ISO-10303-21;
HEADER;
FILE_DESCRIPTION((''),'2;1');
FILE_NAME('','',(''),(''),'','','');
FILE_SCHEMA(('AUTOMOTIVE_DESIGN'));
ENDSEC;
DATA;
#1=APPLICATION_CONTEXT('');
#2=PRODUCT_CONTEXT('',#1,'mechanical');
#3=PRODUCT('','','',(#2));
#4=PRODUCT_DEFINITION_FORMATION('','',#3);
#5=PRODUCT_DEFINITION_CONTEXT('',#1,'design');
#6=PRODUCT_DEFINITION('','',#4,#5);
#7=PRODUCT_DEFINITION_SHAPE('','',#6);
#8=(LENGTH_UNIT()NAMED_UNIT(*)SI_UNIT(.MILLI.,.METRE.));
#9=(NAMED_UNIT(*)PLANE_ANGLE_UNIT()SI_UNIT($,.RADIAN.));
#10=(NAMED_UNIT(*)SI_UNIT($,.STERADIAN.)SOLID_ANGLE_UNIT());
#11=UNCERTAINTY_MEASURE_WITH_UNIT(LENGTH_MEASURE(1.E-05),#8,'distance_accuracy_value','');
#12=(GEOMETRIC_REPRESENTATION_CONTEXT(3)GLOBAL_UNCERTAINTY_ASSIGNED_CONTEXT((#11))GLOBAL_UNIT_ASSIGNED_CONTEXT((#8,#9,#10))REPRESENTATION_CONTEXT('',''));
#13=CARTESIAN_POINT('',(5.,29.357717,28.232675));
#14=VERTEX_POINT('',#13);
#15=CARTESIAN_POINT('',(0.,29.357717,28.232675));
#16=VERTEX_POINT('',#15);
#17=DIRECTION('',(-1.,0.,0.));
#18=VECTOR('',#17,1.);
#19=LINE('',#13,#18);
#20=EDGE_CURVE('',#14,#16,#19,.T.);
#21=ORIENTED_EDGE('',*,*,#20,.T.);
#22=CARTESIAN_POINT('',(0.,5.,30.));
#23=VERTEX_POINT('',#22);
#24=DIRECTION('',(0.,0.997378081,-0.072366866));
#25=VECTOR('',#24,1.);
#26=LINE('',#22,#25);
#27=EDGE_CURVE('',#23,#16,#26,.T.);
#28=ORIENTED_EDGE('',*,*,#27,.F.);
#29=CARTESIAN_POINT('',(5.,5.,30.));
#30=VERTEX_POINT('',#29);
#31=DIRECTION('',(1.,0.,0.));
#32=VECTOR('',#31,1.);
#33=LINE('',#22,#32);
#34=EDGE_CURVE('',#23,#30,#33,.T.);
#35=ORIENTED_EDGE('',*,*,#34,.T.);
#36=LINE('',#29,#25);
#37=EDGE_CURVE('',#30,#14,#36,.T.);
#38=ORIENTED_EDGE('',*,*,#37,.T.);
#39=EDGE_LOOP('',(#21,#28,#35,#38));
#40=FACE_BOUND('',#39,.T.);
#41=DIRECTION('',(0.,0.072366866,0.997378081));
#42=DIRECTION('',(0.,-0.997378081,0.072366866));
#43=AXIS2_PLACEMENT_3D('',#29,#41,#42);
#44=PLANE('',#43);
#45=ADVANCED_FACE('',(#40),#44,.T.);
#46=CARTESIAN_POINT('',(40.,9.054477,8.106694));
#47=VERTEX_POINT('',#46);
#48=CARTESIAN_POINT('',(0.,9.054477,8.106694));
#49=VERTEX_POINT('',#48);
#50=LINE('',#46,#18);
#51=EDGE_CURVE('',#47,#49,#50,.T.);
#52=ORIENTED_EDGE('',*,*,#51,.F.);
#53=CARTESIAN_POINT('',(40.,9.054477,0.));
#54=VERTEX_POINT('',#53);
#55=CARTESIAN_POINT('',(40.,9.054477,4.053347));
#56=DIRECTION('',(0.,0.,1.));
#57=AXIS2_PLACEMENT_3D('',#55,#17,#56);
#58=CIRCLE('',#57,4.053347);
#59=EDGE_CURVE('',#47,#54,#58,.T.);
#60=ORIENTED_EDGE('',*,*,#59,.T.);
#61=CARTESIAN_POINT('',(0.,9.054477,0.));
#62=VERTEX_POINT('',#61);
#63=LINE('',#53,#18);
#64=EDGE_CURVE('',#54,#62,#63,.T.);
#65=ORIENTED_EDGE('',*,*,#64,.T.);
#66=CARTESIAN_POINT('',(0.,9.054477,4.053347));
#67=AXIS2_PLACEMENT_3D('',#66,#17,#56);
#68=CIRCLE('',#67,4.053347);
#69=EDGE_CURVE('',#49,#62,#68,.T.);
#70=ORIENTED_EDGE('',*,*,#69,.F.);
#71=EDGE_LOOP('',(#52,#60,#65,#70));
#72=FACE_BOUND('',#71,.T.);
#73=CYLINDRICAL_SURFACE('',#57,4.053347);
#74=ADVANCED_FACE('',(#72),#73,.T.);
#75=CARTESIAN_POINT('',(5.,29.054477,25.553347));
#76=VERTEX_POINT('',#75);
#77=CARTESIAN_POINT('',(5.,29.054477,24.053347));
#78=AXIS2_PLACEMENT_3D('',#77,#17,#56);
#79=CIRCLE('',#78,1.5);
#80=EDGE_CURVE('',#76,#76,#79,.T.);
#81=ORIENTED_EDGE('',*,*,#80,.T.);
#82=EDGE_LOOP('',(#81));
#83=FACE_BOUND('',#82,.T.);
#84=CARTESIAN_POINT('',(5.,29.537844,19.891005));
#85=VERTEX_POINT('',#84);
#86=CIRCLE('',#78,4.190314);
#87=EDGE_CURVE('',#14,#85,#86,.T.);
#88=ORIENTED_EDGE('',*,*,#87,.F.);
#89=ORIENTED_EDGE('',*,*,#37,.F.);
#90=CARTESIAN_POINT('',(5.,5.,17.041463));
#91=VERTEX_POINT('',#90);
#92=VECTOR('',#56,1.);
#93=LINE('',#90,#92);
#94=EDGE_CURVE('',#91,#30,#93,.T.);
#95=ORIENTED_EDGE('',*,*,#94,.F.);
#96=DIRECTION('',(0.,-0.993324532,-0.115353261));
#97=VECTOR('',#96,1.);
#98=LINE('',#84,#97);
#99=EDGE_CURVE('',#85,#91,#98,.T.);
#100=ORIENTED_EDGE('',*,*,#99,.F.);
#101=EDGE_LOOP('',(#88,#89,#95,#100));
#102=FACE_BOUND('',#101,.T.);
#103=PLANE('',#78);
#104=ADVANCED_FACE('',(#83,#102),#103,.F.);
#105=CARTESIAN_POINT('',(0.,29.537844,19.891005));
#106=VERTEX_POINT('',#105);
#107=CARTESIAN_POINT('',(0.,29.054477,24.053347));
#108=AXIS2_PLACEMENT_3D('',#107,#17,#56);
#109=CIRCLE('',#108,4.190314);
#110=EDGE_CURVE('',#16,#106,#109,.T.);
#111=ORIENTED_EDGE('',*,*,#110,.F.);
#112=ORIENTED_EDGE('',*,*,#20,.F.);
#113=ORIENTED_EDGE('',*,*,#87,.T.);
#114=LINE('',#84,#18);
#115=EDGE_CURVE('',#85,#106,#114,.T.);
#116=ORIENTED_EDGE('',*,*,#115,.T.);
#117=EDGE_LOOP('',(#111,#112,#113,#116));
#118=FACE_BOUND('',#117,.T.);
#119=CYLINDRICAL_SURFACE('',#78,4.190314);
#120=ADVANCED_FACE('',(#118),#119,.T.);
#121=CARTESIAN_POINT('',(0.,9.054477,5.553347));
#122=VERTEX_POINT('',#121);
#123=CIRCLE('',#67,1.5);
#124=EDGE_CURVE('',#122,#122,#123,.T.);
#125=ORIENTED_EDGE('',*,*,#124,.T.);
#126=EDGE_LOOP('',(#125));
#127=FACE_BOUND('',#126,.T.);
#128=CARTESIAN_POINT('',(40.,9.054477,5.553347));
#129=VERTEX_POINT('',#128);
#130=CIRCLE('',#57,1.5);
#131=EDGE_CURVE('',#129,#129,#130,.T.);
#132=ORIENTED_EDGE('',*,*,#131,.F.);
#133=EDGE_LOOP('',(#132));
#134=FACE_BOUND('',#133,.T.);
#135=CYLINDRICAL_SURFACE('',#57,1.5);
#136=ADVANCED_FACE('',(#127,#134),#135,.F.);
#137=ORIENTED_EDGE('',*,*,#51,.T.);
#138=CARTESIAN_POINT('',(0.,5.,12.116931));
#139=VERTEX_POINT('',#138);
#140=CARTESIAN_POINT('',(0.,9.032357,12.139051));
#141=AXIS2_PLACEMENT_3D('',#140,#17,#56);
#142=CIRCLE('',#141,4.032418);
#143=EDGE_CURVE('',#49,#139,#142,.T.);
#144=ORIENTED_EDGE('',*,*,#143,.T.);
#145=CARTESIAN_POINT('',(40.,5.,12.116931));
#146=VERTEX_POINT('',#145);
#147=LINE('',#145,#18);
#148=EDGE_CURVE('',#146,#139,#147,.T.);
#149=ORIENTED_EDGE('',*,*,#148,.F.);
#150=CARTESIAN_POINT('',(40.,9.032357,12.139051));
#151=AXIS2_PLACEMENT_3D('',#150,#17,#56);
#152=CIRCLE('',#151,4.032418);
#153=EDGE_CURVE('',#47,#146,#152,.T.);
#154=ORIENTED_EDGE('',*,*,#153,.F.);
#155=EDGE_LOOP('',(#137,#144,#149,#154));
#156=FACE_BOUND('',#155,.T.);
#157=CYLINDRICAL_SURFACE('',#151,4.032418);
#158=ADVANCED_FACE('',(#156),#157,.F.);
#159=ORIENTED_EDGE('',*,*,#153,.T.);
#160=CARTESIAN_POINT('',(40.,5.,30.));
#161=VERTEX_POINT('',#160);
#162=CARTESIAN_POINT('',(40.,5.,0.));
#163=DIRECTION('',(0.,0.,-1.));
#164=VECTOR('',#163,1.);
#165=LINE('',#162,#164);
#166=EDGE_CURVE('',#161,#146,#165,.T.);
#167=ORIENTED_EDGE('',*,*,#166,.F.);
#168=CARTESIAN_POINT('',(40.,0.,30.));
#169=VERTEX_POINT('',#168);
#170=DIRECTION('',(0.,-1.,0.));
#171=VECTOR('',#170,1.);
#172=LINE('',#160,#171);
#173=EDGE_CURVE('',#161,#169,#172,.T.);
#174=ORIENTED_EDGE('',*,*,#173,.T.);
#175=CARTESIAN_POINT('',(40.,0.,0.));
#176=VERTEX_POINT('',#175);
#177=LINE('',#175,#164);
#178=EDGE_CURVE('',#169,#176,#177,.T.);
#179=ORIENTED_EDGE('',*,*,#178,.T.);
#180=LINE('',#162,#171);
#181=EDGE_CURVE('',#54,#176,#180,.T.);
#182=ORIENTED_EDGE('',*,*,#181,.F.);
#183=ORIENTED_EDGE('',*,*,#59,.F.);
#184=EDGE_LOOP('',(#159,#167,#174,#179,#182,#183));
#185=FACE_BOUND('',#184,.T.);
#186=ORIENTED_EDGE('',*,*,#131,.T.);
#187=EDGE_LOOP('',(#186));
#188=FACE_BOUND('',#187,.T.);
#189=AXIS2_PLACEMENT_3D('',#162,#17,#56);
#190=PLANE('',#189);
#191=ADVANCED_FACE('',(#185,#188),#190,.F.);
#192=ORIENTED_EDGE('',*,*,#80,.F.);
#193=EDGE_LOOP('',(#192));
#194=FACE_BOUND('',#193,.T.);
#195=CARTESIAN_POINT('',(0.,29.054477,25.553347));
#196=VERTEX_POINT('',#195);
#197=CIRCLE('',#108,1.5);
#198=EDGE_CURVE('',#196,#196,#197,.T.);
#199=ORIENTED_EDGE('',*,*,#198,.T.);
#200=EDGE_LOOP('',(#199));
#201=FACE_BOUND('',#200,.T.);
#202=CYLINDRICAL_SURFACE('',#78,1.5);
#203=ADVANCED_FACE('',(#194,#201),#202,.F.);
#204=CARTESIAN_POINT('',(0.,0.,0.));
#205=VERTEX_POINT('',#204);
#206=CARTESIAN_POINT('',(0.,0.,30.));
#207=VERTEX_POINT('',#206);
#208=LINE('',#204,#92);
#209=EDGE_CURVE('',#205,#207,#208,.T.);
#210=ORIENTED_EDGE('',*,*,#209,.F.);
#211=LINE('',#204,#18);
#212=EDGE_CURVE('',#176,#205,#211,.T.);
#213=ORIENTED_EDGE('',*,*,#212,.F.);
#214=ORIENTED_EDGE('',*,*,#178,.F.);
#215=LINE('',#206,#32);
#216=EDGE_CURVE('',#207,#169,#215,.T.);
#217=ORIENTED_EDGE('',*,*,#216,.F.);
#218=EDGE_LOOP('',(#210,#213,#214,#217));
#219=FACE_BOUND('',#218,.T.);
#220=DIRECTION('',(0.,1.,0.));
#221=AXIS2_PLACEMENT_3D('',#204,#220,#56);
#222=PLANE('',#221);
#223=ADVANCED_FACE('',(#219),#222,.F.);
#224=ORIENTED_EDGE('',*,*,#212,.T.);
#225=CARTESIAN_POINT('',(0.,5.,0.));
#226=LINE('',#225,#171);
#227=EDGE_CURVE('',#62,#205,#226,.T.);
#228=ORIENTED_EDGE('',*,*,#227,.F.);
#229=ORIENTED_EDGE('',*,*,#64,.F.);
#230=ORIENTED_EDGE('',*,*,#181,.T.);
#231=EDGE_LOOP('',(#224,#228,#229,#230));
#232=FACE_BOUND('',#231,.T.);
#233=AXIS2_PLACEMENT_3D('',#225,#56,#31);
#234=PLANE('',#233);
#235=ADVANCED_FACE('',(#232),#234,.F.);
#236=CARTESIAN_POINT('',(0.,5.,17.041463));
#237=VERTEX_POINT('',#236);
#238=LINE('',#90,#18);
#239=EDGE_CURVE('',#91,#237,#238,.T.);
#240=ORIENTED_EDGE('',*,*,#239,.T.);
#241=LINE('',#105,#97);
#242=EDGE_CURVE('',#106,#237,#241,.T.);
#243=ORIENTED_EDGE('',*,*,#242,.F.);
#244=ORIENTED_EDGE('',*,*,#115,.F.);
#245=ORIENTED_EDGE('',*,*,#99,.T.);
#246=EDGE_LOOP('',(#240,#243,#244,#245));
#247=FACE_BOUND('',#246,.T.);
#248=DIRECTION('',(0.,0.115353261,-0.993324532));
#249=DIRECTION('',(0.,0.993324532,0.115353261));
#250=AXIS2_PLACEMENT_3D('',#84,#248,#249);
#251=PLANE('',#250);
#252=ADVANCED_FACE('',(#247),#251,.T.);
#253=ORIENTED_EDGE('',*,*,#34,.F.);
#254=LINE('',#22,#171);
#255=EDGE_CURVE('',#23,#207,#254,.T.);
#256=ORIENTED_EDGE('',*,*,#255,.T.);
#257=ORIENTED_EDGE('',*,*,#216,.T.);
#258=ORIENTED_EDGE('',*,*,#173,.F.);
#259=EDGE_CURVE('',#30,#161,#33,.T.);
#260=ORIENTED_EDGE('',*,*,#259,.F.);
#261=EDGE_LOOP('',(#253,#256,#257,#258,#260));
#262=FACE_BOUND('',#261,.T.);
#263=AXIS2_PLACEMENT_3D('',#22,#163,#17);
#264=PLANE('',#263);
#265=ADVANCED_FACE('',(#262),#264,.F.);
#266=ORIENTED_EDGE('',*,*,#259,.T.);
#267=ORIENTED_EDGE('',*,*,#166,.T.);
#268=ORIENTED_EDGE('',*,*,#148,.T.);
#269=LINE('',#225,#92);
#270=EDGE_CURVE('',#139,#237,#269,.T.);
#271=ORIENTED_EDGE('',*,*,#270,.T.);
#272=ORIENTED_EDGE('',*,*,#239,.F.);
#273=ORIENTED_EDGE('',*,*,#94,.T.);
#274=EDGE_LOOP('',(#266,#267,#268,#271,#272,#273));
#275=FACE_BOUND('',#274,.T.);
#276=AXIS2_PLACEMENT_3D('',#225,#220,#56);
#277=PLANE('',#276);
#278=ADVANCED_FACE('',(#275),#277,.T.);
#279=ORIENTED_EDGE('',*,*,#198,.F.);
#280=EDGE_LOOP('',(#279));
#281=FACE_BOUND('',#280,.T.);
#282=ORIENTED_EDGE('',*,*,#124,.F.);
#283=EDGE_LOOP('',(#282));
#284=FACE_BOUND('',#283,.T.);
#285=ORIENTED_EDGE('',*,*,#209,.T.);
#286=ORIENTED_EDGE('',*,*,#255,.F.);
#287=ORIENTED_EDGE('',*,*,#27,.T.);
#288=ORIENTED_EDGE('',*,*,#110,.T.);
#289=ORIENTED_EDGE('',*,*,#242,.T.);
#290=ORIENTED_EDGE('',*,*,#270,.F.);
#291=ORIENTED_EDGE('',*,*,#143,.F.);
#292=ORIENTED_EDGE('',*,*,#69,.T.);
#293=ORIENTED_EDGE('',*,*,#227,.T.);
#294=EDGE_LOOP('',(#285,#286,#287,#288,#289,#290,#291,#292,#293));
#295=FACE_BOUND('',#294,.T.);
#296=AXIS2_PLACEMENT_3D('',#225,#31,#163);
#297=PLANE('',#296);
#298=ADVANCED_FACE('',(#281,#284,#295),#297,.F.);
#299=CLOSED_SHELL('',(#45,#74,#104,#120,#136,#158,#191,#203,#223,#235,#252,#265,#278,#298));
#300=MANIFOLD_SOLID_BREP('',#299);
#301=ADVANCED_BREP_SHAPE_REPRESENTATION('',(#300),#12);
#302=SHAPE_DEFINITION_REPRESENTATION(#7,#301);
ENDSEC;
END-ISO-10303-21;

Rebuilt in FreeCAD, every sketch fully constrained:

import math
import FreeCAD as App
import Part
import Sketcher
from FreeCAD import Vector
Q = App.Units.Quantity


def add_polygon(sketch, points):
    """Adds a closed chain of lines whose ends are joined by coincident constraints."""
    first, n = sketch.GeometryCount, len(points)
    for a, b in zip(points, points[1:] + points[:1]):
        sketch.addGeometry(Part.LineSegment(App.Vector(*a, 0), App.Vector(*b, 0)), False)
    for i in range(n):
        sketch.addConstraint(Sketcher.Constraint("Coincident", first + i, 2, first + (i + 1) % n, 1))

doc = App.newDocument("Part")
params = doc.addObject("Spreadsheet::Sheet", "Params")
for row, (alias, value) in enumerate([
    ("sketch1_width", "40 mm"),
    ("sketch1_height", "30 mm"),
    ("pad1_length", "5 mm"),
    ("sketch2_diameter", "3 mm"),
    ("pad2_length", "40 mm"),
    ("sketch3_diameter", "3 mm"),
    ("pad3_length", "5 mm"),
], start=1):
    params.set(f"A{row}", alias)
    params.set(f"B{row}", "=" + value)
    params.setAlias(f"B{row}", alias)

body = doc.addObject("PartDesign::Body", "Body")

sketch1 = body.newObject("Sketcher::SketchObject", "Sketch")
sketch1.AttachmentSupport = (doc.getObject("XZ_Plane"), [""])
sketch1.MapMode = "FlatFace"
add_polygon(sketch1, [(0, 0), (0, 30), (40, 30), (40, 0)])
sketch1.addConstraint([
    Sketcher.Constraint("Vertical", 0),
    Sketcher.Constraint("Horizontal", 1),
    Sketcher.Constraint("Vertical", 2),
    Sketcher.Constraint("Horizontal", 3),
    Sketcher.Constraint("Coincident", 3, 2, -1, 1),
    Sketcher.Constraint("DistanceX", 1, 1, 1, 2, Q("40 mm")),
    Sketcher.Constraint("DistanceY", 0, 1, 0, 2, Q("30 mm")),
])
sketch1.setExpression("Constraints[9]", "Params.sketch1_width")
sketch1.setExpression("Constraints[10]", "Params.sketch1_height")
pad1 = body.newObject("PartDesign::Pad", "Pad")
pad1.Profile = sketch1
pad1.setExpression("Length", "Params.pad1_length")
pad1.Reversed = True

sketch2 = body.newObject("Sketcher::SketchObject", "Sketch001")
sketch2.AttachmentSupport = (doc.getObject("YZ_Plane"), [""])
sketch2.MapMode = "FlatFace"
sketch2.addGeometry([
    Part.ArcOfCircle(Part.Circle(Vector(9.054, 4.053, 0), Vector(0, 0, 1), 4.053), math.radians(-90), math.radians(90)),
    Part.LineSegment(Vector(9.054, 0, 0), Vector(5, 0, 0)),
    Part.LineSegment(Vector(5, 0, 0), Vector(5, 12.117, 0)),
    Part.ArcOfCircle(Part.Circle(Vector(9.032, 12.139, 0), Vector(0, 0, 1), 4.032), math.radians(-180), math.radians(-90)),
    Part.ArcOfCircle(Part.Circle(Vector(9.054, 4.053, 0), Vector(0, 0, 1), 4.053), math.radians(90), math.radians(90.31)),
    Part.Circle(Vector(9.054, 4.053, 0), Vector(0, 0, 1), 1.5),
], False)
sketch2.addConstraint([
    Sketcher.Constraint("Tangent", 0, 1, 1, 1),
    Sketcher.Constraint("Coincident", 1, 2, 2, 1),
    Sketcher.Constraint("Coincident", 2, 2, 3, 1),
    Sketcher.Constraint("Coincident", 3, 2, 4, 2),
    Sketcher.Constraint("Tangent", 4, 1, 0, 2),
    Sketcher.Constraint("Horizontal", 1),
    Sketcher.Constraint("Vertical", 2),
    Sketcher.Constraint("Coincident", 5, 3, 0, 3),
    Sketcher.Constraint("PointOnObject", 0, 1, -1),
    Sketcher.Constraint("Vertical", 0, 1, 4, 1),
    Sketcher.Constraint("Diameter", 5, Q("3 mm")),
    Sketcher.Constraint("DistanceX", -1, 1, 1, 2, Q("5 mm")),
    Sketcher.Constraint("Radius", 4, Q("4.053321 mm")),
    Sketcher.Constraint("Radius", 0, Q("4.053347 mm")),
    Sketcher.Constraint("Radius", 3, Q("4.032418 mm")),
    Sketcher.Constraint("DistanceY", 2, 1, 2, 2, Q("12.116931 mm")),
    Sketcher.Constraint("DistanceX", -1, 1, 3, 2, Q("9.0323 mm")),
    Sketcher.Constraint("DistanceX", 1, 2, 1, 1, Q("4.054477 mm")),
])
sketch2.setExpression("Constraints[10]", "Params.sketch2_diameter")
pad2 = body.newObject("PartDesign::Pad", "Pad001")
pad2.Profile = sketch2
pad2.setExpression("Length", "Params.pad2_length")

sketch3 = body.newObject("Sketcher::SketchObject", "Sketch002")
sketch3.AttachmentSupport = (doc.getObject("YZ_Plane"), [""])
sketch3.MapMode = "FlatFace"
sketch3.addGeometry([
    Part.LineSegment(Vector(5, 30, 0), Vector(29.4, 28.2, 0)),
    Part.ArcOfCircle(Part.Circle(Vector(29.1, 24.1, 0), Vector(0, 0, 1), 4.2), math.radians(-83), math.radians(86)),
    Part.LineSegment(Vector(29.5, 19.9, 0), Vector(5, 17, 0)),
    Part.LineSegment(Vector(5, 17, 0), Vector(5, 30, 0)),
    Part.Circle(Vector(29.1, 24.1, 0), Vector(0, 0, 1), 1.5),
], False)
sketch3.addConstraint([
    Sketcher.Constraint("Tangent", 0, 2, 1, 2),
    Sketcher.Constraint("Tangent", 1, 1, 2, 1),
    Sketcher.Constraint("Coincident", 2, 2, 3, 1),
    Sketcher.Constraint("Coincident", 3, 2, 0, 1),
    Sketcher.Constraint("Vertical", 3),
    Sketcher.Constraint("Coincident", 4, 3, 1, 3),
    Sketcher.Constraint("Diameter", 4, Q("3 mm")),
    Sketcher.Constraint("DistanceX", -1, 1, 2, 2, Q("5 mm")),
    Sketcher.Constraint("DistanceY", -1, 1, 3, 2, Q("30 mm")),
    Sketcher.Constraint("Radius", 1, Q("4.190314 mm")),
    Sketcher.Constraint("Distance", 0, Q("24.421749 mm")),
    Sketcher.Constraint("DistanceY", 3, 1, 3, 2, Q("12.958537 mm")),
    Sketcher.Constraint("DistanceX", 1, 3, 0, 2, Q("0.30324 mm")),
])
sketch3.setExpression("Constraints[6]", "Params.sketch3_diameter")
pad3 = body.newObject("PartDesign::Pad", "Pad002")
pad3.Profile = sketch3
pad3.setExpression("Length", "Params.pad3_length")

doc.recompute()
